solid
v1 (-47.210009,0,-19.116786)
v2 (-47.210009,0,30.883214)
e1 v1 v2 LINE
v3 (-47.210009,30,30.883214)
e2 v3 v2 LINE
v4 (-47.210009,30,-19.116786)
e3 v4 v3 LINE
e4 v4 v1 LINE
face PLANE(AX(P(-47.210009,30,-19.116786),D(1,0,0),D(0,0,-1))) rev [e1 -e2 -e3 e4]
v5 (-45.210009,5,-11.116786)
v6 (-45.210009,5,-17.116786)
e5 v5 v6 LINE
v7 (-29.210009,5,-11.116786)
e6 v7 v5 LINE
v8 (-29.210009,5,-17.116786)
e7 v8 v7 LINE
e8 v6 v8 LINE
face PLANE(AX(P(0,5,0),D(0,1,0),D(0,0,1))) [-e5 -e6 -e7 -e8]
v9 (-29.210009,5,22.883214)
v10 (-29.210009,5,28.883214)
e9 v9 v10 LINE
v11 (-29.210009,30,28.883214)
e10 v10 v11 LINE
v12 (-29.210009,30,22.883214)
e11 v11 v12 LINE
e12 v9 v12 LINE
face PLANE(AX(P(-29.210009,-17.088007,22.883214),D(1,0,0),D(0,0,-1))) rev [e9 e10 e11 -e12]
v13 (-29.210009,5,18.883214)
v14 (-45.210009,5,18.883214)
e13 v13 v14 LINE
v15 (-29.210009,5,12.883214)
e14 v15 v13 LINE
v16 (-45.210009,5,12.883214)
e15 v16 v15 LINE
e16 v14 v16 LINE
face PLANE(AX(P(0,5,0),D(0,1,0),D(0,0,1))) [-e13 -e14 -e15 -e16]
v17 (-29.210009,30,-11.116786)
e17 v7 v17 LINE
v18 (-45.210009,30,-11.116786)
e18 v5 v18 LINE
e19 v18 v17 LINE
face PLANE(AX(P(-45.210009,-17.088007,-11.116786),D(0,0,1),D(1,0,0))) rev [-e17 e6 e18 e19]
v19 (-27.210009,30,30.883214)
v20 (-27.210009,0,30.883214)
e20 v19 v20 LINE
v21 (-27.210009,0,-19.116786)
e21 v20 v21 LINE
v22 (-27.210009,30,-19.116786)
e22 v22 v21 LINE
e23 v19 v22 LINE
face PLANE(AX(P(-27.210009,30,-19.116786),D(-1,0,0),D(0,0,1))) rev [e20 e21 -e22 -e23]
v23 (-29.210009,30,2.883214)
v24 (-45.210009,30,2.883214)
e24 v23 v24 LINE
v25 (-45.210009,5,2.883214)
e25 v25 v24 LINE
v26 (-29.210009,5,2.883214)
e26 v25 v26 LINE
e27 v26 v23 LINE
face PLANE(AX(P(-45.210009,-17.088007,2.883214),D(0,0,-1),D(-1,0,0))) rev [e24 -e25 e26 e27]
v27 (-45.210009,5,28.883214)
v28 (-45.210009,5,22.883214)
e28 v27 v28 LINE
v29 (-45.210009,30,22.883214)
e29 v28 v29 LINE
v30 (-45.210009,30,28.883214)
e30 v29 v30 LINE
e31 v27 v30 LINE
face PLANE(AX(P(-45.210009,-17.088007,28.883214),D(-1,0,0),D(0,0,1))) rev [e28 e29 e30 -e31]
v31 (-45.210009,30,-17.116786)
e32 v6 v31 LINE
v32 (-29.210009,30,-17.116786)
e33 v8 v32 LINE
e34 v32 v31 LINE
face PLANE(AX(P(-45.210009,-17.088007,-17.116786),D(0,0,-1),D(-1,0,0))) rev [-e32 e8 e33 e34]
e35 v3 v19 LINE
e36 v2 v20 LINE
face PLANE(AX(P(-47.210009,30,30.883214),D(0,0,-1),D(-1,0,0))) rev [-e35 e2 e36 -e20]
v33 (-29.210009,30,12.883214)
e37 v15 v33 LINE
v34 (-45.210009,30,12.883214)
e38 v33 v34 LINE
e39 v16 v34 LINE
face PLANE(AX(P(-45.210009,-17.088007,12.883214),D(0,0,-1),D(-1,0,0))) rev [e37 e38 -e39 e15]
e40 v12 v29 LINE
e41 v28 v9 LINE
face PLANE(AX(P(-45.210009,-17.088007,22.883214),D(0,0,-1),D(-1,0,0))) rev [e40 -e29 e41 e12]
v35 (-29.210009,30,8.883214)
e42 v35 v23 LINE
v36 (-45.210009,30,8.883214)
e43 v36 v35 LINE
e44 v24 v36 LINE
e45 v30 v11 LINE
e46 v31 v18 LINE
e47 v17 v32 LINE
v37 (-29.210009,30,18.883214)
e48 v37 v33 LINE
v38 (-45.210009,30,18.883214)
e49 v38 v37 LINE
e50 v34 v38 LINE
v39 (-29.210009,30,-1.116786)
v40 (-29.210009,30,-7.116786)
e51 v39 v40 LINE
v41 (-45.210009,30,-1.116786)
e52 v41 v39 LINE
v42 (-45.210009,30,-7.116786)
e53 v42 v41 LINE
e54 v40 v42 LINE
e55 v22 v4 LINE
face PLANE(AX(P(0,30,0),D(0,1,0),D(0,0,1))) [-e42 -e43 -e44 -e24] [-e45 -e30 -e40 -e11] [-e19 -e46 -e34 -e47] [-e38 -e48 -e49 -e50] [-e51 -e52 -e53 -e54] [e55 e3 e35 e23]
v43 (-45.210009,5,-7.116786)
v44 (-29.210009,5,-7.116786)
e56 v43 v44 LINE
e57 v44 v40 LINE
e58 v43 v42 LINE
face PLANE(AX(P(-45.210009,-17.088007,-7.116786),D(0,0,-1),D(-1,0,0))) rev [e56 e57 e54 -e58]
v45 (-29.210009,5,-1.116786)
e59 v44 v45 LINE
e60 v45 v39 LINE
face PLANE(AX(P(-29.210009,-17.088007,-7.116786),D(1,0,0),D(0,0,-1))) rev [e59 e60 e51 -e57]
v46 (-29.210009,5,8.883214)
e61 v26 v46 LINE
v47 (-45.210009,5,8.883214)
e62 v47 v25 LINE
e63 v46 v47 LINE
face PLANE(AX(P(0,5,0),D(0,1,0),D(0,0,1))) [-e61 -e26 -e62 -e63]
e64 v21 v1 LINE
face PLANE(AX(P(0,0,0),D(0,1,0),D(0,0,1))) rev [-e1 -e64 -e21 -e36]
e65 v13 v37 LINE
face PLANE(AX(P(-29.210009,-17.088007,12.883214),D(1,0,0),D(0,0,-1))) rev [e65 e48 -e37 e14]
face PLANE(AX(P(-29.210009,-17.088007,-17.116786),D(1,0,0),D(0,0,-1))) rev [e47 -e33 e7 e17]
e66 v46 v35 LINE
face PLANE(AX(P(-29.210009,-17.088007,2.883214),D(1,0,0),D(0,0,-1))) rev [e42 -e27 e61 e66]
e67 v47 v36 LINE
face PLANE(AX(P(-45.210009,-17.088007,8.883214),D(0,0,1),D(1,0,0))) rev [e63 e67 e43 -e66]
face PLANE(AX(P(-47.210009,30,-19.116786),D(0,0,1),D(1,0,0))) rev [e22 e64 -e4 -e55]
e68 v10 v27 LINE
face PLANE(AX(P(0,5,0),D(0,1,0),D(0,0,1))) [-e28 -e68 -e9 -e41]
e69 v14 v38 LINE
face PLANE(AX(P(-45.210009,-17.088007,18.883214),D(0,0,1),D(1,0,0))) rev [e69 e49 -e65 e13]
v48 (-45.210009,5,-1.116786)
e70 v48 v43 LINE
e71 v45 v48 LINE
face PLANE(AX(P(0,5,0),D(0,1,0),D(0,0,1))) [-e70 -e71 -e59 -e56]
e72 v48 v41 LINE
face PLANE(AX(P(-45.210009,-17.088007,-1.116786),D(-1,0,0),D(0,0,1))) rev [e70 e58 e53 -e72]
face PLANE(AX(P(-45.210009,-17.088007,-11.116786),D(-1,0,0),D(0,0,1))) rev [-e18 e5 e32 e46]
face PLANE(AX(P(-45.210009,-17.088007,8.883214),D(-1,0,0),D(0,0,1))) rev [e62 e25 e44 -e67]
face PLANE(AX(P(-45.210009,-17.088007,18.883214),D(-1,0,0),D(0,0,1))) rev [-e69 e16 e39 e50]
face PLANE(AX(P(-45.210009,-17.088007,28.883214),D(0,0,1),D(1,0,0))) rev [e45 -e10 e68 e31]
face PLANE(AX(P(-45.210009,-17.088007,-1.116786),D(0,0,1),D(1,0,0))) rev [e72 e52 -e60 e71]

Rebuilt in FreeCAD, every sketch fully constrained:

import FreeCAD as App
import Part
import Sketcher
from FreeCAD import Vector
Q = App.Units.Quantity

doc = App.newDocument("Part")
body = doc.addObject("PartDesign::Body", "Body")

sketch1 = body.newObject("Sketcher::SketchObject", "Sketch")
sketch1.AttachmentSupport = (doc.getObject("XZ_Plane"), [""])
sketch1.MapMode = "FlatFace"
sketch1.addGeometry([
    Part.LineSegment(Vector(-47, -19, 0), Vector(-47, 31, 0)),
    Part.LineSegment(Vector(-47, 31, 0), Vector(-27, 31, 0)),
    Part.LineSegment(Vector(-27, 31, 0), Vector(-27, -19, 0)),
    Part.LineSegment(Vector(-27, -19, 0), Vector(-47, -19, 0)),
], False)
sketch1.addConstraint([
    Sketcher.Constraint("Coincident", 0, 2, 1, 1),
    Sketcher.Constraint("Coincident", 1, 2, 2, 1),
    Sketcher.Constraint("Coincident", 2, 2, 3, 1),
    Sketcher.Constraint("Coincident", 3, 2, 0, 1),
    Sketcher.Constraint("Vertical", 0),
    Sketcher.Constraint("Horizontal", 1),
    Sketcher.Constraint("Vertical", 2),
    Sketcher.Constraint("Horizontal", 3),
    Sketcher.Constraint("DistanceX", 1, 1, 1, 2, Q("20 mm")),
    Sketcher.Constraint("DistanceY", 0, 1, 0, 2, Q("50 mm")),
    Sketcher.Constraint("DistanceX", 0, 2, -1, 1, Q("47.210009 mm")),
    Sketcher.Constraint("DistanceY", -1, 1, 0, 2, Q("30.883214 mm")),
])
pad1 = body.newObject("PartDesign::Pad", "Pad")
pad1.Profile = sketch1
pad1.Length = 30
pad1.Reversed = True

sketch2 = body.newObject("Sketcher::SketchObject", "Sketch001")
sketch2.AttachmentSupport = (doc.getObject("XZ_Plane"), [""])
sketch2.MapMode = "FlatFace"
sketch2.AttachmentOffset = App.Placement(Vector(0, 0, -30), App.Rotation())
sketch2.addGeometry([
    Part.LineSegment(Vector(-45, 23, 0), Vector(-45, 29, 0)),
    Part.LineSegment(Vector(-45, 29, 0), Vector(-29, 29, 0)),
    Part.LineSegment(Vector(-29, 29, 0), Vector(-29, 23, 0)),
    Part.LineSegment(Vector(-29, 23, 0), Vector(-45, 23, 0)),
    Part.LineSegment(Vector(-45, -7, 0), Vector(-45, -1, 0)),
    Part.LineSegment(Vector(-45, -1, 0), Vector(-29, -1, 0)),
    Part.LineSegment(Vector(-29, -1, 0), Vector(-29, -7, 0)),
    Part.LineSegment(Vector(-29, -7, 0), Vector(-45, -7, 0)),
    Part.LineSegment(Vector(-45, 13, 0), Vector(-45, 19, 0)),
    Part.LineSegment(Vector(-45, 19, 0), Vector(-29, 19, 0)),
    Part.LineSegment(Vector(-29, 19, 0), Vector(-29, 13, 0)),
    Part.LineSegment(Vector(-29, 13, 0), Vector(-45, 13, 0)),
    Part.LineSegment(Vector(-45, 3, 0), Vector(-45, 9, 0)),
    Part.LineSegment(Vector(-45, 9, 0), Vector(-29, 9, 0)),
    Part.LineSegment(Vector(-29, 9, 0), Vector(-29, 3, 0)),
    Part.LineSegment(Vector(-29, 3, 0), Vector(-45, 3, 0)),
    Part.LineSegment(Vector(-45, -17, 0), Vector(-45, -11, 0)),
    Part.LineSegment(Vector(-45, -11, 0), Vector(-29, -11, 0)),
    Part.LineSegment(Vector(-29, -11, 0), Vector(-29, -17, 0)),
    Part.LineSegment(Vector(-29, -17, 0), Vector(-45, -17, 0)),
], False)
sketch2.addConstraint([
    Sketcher.Constraint("Coincident", 0, 2, 1, 1),
    Sketcher.Constraint("Coincident", 1, 2, 2, 1),
    Sketcher.Constraint("Coincident", 2, 2, 3, 1),
    Sketcher.Constraint("Coincident", 3, 2, 0, 1),
    Sketcher.Constraint("Coincident", 4, 2, 5, 1),
    Sketcher.Constraint("Coincident", 5, 2, 6, 1),
    Sketcher.Constraint("Coincident", 6, 2, 7, 1),
    Sketcher.Constraint("Coincident", 7, 2, 4, 1),
    Sketcher.Constraint("Coincident", 8, 2, 9, 1),
    Sketcher.Constraint("Coincident", 9, 2, 10, 1),
    Sketcher.Constraint("Coincident", 10, 2, 11, 1),
    Sketcher.Constraint("Coincident", 11, 2, 8, 1),
    Sketcher.Constraint("Coincident", 12, 2, 13, 1),
    Sketcher.Constraint("Coincident", 13, 2, 14, 1),
    Sketcher.Constraint("Coincident", 14, 2, 15, 1),
    Sketcher.Constraint("Coincident", 15, 2, 12, 1),
    Sketcher.Constraint("Coincident", 16, 2, 17, 1),
    Sketcher.Constraint("Coincident", 17, 2, 18, 1),
    Sketcher.Constraint("Coincident", 18, 2, 19, 1),
    Sketcher.Constraint("Coincident", 19, 2, 16, 1),
    Sketcher.Constraint("Vertical", 0),
    Sketcher.Constraint("Horizontal", 1),
    Sketcher.Constraint("Vertical", 2),
    Sketcher.Constraint("Horizontal", 3),
    Sketcher.Constraint("Vertical", 4),
    Sketcher.Constraint("Horizontal", 5),
    Sketcher.Constraint("Vertical", 6),
    Sketcher.Constraint("Horizontal", 7),
    Sketcher.Constraint("Vertical", 8),
    Sketcher.Constraint("Horizontal", 9),
    Sketcher.Constraint("Vertical", 10),
    Sketcher.Constraint("Horizontal", 11),
    Sketcher.Constraint("Vertical", 12),
    Sketcher.Constraint("Horizontal", 13),
    Sketcher.Constraint("Vertical", 14),
    Sketcher.Constraint("Horizontal", 15),
    Sketcher.Constraint("Vertical", 16),
    Sketcher.Constraint("Horizontal", 17),
    Sketcher.Constraint("Vertical", 18),
    Sketcher.Constraint("Horizontal", 19),
    Sketcher.Constraint("Vertical", 3, 2, 4, 2),
    Sketcher.Constraint("Vertical", 2, 2, 5, 2),
    Sketcher.Constraint("Vertical", 7, 2, 8, 2),
    Sketcher.Constraint("Vertical", 6, 2, 9, 2),
    Sketcher.Constraint("Vertical", 11, 2, 12, 2),
    Sketcher.Constraint("Vertical", 10, 2, 13, 2),
    Sketcher.Constraint("Vertical", 15, 2, 16, 2),
    Sketcher.Constraint("Vertical", 14, 2, 17, 2),
    Sketcher.Constraint("Equal", 2, 4),
    Sketcher.Constraint("Equal", 6, 8),
    Sketcher.Constraint("Equal", 10, 12),
    Sketcher.Constraint("Equal", 14, 16),
    Sketcher.Constraint("DistanceX", 1, 1, 1, 2, Q("16 mm")),
    Sketcher.Constraint("DistanceY", 0, 1, 0, 2, Q("6 mm")),
    Sketcher.Constraint("DistanceY", 4, 2, 3, 2, Q("24 mm")),
    Sketcher.Constraint("DistanceY", 8, 2, 3, 2, Q("4 mm")),
    Sketcher.Constraint("DistanceY", 12, 2, 11, 2, Q("4 mm")),
    Sketcher.Constraint("DistanceY", 16, 2, 7, 2, Q("4 mm")),
    Sketcher.Constraint("DistanceX", 0, 2, -1, 1, Q("45.210009 mm")),
    Sketcher.Constraint("DistanceY", -1, 1, 0, 2, Q("28.883214 mm")),
])
pocket1 = body.newObject("PartDesign::Pocket", "Pocket")
pocket1.Profile = sketch2
pocket1.Length = 25
pocket1.Reversed = True

doc.recompute()
